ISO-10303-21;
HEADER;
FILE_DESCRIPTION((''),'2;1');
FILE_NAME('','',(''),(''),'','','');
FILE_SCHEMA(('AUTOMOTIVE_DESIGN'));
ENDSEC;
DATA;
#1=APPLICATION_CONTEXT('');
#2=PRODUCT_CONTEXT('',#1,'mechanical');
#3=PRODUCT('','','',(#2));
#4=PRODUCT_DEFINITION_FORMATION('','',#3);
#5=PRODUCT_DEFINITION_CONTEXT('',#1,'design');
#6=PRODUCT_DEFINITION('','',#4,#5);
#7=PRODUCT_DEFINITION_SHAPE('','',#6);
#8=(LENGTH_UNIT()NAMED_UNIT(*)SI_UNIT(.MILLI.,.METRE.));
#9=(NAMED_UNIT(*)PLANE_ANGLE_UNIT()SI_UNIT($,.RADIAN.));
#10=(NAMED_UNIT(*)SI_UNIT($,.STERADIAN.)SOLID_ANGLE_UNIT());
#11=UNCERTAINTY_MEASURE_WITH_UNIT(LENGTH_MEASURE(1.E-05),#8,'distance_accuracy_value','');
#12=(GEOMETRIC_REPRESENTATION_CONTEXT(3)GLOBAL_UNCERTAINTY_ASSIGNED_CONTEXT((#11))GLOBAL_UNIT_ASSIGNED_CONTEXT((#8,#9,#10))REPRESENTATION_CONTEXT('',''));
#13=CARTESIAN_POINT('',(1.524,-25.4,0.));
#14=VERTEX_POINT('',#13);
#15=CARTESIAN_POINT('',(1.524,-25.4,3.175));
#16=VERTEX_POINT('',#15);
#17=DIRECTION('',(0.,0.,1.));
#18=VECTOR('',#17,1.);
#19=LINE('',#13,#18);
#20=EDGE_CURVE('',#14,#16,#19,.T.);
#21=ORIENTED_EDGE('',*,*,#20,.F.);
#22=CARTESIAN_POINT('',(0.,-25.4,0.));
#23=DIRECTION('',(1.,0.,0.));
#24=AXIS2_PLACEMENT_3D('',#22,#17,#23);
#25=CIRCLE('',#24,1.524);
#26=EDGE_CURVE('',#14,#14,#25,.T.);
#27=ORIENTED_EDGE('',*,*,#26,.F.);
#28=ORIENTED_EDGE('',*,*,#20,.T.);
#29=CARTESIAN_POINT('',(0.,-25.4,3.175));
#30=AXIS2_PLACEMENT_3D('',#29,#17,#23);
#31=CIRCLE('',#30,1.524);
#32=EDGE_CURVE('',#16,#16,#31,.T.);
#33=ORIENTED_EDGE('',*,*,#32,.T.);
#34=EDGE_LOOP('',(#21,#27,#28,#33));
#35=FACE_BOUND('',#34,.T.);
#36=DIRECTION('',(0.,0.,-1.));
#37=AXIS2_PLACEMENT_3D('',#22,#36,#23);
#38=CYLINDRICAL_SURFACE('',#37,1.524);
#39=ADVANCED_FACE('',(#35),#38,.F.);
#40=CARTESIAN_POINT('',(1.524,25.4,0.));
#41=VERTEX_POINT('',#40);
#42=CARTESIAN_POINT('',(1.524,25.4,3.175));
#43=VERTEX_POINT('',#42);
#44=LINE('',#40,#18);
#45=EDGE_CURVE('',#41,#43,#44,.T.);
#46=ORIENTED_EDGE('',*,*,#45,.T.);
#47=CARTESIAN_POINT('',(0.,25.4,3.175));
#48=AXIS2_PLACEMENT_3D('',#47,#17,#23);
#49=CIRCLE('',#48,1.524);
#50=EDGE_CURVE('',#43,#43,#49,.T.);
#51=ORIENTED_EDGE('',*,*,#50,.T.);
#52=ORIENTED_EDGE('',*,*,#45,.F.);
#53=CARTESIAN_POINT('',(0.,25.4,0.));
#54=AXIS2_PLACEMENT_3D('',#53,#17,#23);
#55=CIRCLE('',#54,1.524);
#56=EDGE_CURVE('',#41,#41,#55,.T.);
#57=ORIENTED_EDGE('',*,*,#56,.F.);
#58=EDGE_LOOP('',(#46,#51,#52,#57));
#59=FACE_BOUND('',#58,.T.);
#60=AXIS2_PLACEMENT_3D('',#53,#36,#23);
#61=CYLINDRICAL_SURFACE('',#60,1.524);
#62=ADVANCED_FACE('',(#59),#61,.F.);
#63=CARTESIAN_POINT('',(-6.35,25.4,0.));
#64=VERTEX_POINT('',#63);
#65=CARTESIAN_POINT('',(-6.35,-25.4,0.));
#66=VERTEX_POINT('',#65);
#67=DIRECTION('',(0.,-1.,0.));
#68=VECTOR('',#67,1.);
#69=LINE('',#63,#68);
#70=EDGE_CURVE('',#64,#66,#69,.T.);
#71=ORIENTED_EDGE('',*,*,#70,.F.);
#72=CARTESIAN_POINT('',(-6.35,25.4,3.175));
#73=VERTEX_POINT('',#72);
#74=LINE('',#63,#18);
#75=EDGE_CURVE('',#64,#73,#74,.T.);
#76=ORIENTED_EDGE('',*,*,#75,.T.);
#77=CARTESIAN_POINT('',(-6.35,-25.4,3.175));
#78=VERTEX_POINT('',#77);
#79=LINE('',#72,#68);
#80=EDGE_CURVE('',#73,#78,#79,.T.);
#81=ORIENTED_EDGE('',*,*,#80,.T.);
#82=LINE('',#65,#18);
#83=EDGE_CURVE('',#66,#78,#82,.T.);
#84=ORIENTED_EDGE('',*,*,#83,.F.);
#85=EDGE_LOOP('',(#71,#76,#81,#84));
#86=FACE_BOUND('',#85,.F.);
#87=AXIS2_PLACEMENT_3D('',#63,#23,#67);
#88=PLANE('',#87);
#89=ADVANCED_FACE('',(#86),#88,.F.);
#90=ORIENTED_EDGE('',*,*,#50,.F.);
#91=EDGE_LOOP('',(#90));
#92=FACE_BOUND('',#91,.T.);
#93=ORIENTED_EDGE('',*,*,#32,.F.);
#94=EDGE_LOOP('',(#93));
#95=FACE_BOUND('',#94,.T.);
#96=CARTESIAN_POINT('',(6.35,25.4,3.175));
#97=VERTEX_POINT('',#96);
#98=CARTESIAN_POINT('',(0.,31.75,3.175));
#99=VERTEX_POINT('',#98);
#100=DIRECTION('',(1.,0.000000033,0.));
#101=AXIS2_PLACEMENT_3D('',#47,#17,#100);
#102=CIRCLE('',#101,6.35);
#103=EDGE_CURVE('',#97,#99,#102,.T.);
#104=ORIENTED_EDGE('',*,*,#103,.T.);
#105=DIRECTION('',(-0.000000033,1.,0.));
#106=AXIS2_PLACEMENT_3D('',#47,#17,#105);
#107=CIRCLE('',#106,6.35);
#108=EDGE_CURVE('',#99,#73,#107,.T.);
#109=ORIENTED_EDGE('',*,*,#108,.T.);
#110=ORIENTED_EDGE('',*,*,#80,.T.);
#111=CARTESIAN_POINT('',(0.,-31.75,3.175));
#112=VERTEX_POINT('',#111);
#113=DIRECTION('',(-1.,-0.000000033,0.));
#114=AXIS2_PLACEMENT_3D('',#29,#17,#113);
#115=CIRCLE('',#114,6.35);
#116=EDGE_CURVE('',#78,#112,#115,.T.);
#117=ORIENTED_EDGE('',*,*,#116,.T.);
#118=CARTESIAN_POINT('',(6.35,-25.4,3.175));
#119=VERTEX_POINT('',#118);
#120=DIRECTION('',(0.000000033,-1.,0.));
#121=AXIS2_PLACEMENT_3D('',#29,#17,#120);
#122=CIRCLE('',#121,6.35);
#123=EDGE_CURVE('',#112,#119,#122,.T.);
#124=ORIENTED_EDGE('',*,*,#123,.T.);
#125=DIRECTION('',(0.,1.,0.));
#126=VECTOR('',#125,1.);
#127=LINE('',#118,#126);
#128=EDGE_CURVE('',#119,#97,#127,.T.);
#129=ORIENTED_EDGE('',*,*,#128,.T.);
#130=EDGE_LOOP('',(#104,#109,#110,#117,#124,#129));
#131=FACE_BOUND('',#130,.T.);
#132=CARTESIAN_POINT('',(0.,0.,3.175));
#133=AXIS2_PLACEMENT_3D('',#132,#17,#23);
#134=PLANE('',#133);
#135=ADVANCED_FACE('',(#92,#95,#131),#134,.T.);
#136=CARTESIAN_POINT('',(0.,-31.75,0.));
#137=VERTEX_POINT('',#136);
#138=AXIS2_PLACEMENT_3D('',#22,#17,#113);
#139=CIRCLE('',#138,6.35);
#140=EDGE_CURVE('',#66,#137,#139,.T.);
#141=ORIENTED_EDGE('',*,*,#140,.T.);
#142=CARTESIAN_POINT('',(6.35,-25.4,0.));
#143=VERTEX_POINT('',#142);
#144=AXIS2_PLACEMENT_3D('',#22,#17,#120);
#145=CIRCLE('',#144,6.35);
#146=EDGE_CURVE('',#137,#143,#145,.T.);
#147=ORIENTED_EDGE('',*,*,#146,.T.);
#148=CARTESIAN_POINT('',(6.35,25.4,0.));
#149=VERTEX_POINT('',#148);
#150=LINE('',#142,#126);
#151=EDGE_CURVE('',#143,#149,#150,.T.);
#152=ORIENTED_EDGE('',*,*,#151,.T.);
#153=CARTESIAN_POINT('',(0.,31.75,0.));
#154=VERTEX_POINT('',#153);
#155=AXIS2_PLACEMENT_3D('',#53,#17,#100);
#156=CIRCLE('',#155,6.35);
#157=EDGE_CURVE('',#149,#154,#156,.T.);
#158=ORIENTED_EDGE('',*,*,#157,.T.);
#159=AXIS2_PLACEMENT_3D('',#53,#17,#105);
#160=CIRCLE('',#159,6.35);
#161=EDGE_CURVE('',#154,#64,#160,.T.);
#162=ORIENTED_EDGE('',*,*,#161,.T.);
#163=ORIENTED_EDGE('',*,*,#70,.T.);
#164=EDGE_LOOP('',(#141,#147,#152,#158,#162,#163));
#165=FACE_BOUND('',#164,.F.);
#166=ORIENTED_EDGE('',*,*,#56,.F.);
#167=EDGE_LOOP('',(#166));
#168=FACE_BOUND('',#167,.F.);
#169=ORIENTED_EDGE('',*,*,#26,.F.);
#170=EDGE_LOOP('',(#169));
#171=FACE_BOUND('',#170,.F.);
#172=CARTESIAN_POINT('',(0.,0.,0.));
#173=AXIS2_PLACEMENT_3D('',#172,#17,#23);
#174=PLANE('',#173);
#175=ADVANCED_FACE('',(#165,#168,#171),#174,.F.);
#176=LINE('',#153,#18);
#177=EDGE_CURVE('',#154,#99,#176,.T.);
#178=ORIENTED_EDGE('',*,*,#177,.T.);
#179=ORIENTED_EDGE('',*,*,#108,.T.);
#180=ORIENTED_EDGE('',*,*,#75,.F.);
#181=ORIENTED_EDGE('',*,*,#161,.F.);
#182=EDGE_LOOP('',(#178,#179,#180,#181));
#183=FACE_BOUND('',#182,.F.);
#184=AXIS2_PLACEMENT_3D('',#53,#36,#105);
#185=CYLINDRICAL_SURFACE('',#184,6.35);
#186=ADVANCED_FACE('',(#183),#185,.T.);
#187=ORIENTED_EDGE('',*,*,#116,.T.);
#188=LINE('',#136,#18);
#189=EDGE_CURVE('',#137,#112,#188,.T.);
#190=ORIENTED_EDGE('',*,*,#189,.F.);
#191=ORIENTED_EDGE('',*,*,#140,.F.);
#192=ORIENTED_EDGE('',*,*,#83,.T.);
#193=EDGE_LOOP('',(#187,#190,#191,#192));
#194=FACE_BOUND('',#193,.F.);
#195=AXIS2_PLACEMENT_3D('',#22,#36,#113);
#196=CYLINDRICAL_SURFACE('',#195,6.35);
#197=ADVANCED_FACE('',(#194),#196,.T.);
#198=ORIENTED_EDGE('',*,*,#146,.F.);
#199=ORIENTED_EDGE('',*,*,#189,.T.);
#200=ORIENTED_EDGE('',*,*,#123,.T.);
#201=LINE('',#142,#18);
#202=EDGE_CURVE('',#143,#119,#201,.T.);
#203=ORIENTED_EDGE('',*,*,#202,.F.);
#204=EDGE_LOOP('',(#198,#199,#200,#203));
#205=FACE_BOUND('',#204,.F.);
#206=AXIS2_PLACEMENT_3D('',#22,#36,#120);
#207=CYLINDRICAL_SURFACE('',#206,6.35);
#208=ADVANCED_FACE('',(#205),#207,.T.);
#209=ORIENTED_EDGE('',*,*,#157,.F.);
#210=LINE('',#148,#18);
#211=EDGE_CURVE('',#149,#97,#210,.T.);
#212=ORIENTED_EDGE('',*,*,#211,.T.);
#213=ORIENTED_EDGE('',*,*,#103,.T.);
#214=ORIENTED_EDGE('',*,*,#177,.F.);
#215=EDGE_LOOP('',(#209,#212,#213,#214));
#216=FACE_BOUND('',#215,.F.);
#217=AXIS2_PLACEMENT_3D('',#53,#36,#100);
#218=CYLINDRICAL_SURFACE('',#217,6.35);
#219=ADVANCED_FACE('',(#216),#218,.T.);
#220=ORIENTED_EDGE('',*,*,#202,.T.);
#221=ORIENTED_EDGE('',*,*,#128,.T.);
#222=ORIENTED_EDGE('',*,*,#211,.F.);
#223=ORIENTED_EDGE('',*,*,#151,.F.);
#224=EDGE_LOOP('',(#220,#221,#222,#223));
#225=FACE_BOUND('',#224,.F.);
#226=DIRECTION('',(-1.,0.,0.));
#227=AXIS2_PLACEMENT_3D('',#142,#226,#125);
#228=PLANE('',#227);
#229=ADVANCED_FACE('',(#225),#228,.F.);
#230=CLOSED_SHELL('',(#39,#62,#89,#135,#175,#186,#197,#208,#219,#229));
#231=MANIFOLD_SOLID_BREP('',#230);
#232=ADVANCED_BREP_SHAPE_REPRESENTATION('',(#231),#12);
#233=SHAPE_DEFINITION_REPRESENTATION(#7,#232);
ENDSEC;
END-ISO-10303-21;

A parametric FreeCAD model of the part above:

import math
import FreeCAD as App
import Part
import Sketcher
from FreeCAD import Vector
Q = App.Units.Quantity

doc = App.newDocument("Part")
body = doc.addObject("PartDesign::Body", "Body")

# Sketch on XY plane
sketch1 = body.newObject("Sketcher::SketchObject", "Sketch")
sketch1.AttachmentSupport = (doc.getObject("XY_Plane"), [""])
sketch1.MapMode = "FlatFace"
sketch1.addGeometry([
    Part.LineSegment(Vector(6.3, -25.4, 0), Vector(6.3, 25.4, 0)),  # 0
    Part.ArcOfCircle(Part.Circle(Vector(0, 25.4, 0), Vector(0, 0, 1), 6.4), math.radians(0), math.radians(90)),  # 1
    Part.ArcOfCircle(Part.Circle(Vector(0, 25.4, 0), Vector(0, 0, 1), 6.4), math.radians(90), math.radians(180)),  # 2
    Part.LineSegment(Vector(-6.3, 25.4, 0), Vector(-6.3, -25.4, 0)),  # 3
    Part.ArcOfCircle(Part.Circle(Vector(0, -25.4, 0), Vector(0, 0, 1), 6.4), math.radians(-180), math.radians(-90)),  # 4
    Part.ArcOfCircle(Part.Circle(Vector(0, -25.4, 0), Vector(0, 0, 1), 6.4), math.radians(-90), math.radians(0)),  # 5
    Part.Circle(Vector(0, -25.4, 0), Vector(0, 0, 1), 1.5),  # 6
    Part.Circle(Vector(0, 25.4, 0), Vector(0, 0, 1), 1.5),  # 7
], False)
sketch1.addConstraint([
    Sketcher.Constraint("Tangent", 0, 2, 1, 1),
    Sketcher.Constraint("Tangent", 1, 2, 2, 1),
    Sketcher.Constraint("Tangent", 2, 2, 3, 1),
    Sketcher.Constraint("Tangent", 3, 2, 4, 1),
    Sketcher.Constraint("Tangent", 4, 2, 5, 1),
    Sketcher.Constraint("Tangent", 5, 2, 0, 1),
    Sketcher.Constraint("Vertical", 0),
    Sketcher.Constraint("Vertical", 3),
    Sketcher.Constraint("Coincident", 6, 3, 4, 3),
    Sketcher.Constraint("Coincident", 7, 3, 1, 3),
    Sketcher.Constraint("Equal", 1, 2),
    Sketcher.Constraint("Equal", 2, 4),
    Sketcher.Constraint("Equal", 6, 7),
    Sketcher.Constraint("Symmetric", 1, 3, 4, 3, -1, 1),
    Sketcher.Constraint("PointOnObject", 1, 2, -2),
    Sketcher.Constraint("PointOnObject", 4, 2, -2),
    Sketcher.Constraint("Diameter", 6, Q("0.12 in")),
    Sketcher.Constraint("DistanceY", 0, 1, 0, 2, Q("2 in")),
    Sketcher.Constraint("Radius", 1, Q("0.25 in")),
])
pad1 = body.newObject("PartDesign::Pad", "Pad")
pad1.Profile = sketch1
pad1.Length = Q("0.125 in")

doc.recompute()
